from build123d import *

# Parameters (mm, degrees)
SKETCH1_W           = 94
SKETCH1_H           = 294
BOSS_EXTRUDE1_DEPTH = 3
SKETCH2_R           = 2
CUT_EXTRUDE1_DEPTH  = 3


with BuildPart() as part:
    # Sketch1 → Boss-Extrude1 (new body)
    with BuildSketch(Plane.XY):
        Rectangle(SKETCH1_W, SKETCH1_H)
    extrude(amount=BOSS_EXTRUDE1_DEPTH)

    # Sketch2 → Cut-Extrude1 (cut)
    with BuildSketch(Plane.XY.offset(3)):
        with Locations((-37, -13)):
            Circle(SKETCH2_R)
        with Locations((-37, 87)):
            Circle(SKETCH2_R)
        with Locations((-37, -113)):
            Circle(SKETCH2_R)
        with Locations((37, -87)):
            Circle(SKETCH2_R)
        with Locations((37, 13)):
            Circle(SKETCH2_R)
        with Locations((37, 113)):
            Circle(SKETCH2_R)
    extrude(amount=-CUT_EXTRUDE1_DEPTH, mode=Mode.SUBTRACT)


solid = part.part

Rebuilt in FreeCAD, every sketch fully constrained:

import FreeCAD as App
import Part
import Sketcher

V = App.Vector
Q = App.Units.Quantity

doc = App.newDocument("Part")
body = doc.addObject("PartDesign::Body", "Body")

sketch1 = body.newObject("Sketcher::SketchObject", "Sketch")
sketch1.AttachmentSupport = (doc.getObject("XY_Plane"), [""])
sketch1.MapMode = "FlatFace"
sketch1.addGeometry(Part.LineSegment(V(-47, 147, 0), V(-47, -147, 0)), False)
sketch1.addGeometry(Part.LineSegment(V(-47, -147, 0), V(47, -147, 0)), False)
sketch1.addGeometry(Part.LineSegment(V(47, -147, 0), V(47, 147, 0)), False)
sketch1.addGeometry(Part.LineSegment(V(47, 147, 0), V(-47, 147, 0)), False)
sketch1.addConstraint(Sketcher.Constraint("Coincident", 0, 2, 1, 1))
sketch1.addConstraint(Sketcher.Constraint("Coincident", 1, 2, 2, 1))
sketch1.addConstraint(Sketcher.Constraint("Coincident", 2, 2, 3, 1))
sketch1.addConstraint(Sketcher.Constraint("Coincident", 3, 2, 0, 1))
sketch1.addConstraint(Sketcher.Constraint("Vertical", 0))
sketch1.addConstraint(Sketcher.Constraint("Horizontal", 1))
sketch1.addConstraint(Sketcher.Constraint("Vertical", 2))
sketch1.addConstraint(Sketcher.Constraint("Horizontal", 3))
sketch1.addConstraint(Sketcher.Constraint("Symmetric", 0, 2, 2, 2, -1, 1))
sketch1.addConstraint(Sketcher.Constraint("DistanceX", 1, 1, 1, 2, Q("94 mm")))
sketch1.addConstraint(Sketcher.Constraint("DistanceY", 0, 2, 0, 1, Q("294 mm")))
pad1 = body.newObject("PartDesign::Pad", "Pad")
pad1.Profile = sketch1
pad1.Length = 3

sketch2 = body.newObject("Sketcher::SketchObject", "Sketch001")
sketch2.AttachmentSupport = (doc.getObject("XY_Plane"), [""])
sketch2.MapMode = "FlatFace"
sketch2.AttachmentOffset = App.Placement(V(0, 0, 3), App.Rotation())
sketch2.addGeometry(Part.Circle(V(-37, -13, 0), V(0, 0, 1), 2), False)
sketch2.addGeometry(Part.Circle(V(-37, 87, 0), V(0, 0, 1), 2), False)
sketch2.addGeometry(Part.Circle(V(-37, -113, 0), V(0, 0, 1), 2), False)
sketch2.addGeometry(Part.Circle(V(37, -87, 0), V(0, 0, 1), 2), False)
sketch2.addGeometry(Part.Circle(V(37, 13, 0), V(0, 0, 1), 2), False)
sketch2.addGeometry(Part.Circle(V(37, 113, 0), V(0, 0, 1), 2), False)
sketch2.addConstraint(Sketcher.Constraint("Equal", 0, 1))
sketch2.addConstraint(Sketcher.Constraint("Equal", 1, 2))
sketch2.addConstraint(Sketcher.Constraint("Equal", 2, 3))
sketch2.addConstraint(Sketcher.Constraint("Equal", 3, 4))
sketch2.addConstraint(Sketcher.Constraint("Equal", 4, 5))
sketch2.addConstraint(Sketcher.Constraint("Symmetric", 1, 3, 3, 3, -1, 1))
sketch2.addConstraint(Sketcher.Constraint("Symmetric", 0, 3, 4, 3, -1, 1))
sketch2.addConstraint(Sketcher.Constraint("Symmetric", 2, 3, 5, 3, -1, 1))
sketch2.addConstraint(Sketcher.Constraint("Vertical", 0, 3, 1, 3))
sketch2.addConstraint(Sketcher.Constraint("Vertical", 1, 3, 2, 3))
sketch2.addConstraint(Sketcher.Constraint("Diameter", 0, Q("4 mm")))
sketch2.addConstraint(Sketcher.Constraint("DistanceX", 0, 3, -1, 1, Q("37 mm")))
sketch2.addConstraint(Sketcher.Constraint("DistanceY", 0, 3, -1, 1, Q("13 mm")))
sketch2.addConstraint(Sketcher.Constraint("DistanceY", -1, 1, 1, 3, Q("87 mm")))
sketch2.addConstraint(Sketcher.Constraint("DistanceY", 2, 3, -1, 1, Q("113 mm")))
pocket1 = body.newObject("PartDesign::Pocket", "Pocket")
pocket1.Profile = sketch2
pocket1.Length = 3

doc.recompute()
